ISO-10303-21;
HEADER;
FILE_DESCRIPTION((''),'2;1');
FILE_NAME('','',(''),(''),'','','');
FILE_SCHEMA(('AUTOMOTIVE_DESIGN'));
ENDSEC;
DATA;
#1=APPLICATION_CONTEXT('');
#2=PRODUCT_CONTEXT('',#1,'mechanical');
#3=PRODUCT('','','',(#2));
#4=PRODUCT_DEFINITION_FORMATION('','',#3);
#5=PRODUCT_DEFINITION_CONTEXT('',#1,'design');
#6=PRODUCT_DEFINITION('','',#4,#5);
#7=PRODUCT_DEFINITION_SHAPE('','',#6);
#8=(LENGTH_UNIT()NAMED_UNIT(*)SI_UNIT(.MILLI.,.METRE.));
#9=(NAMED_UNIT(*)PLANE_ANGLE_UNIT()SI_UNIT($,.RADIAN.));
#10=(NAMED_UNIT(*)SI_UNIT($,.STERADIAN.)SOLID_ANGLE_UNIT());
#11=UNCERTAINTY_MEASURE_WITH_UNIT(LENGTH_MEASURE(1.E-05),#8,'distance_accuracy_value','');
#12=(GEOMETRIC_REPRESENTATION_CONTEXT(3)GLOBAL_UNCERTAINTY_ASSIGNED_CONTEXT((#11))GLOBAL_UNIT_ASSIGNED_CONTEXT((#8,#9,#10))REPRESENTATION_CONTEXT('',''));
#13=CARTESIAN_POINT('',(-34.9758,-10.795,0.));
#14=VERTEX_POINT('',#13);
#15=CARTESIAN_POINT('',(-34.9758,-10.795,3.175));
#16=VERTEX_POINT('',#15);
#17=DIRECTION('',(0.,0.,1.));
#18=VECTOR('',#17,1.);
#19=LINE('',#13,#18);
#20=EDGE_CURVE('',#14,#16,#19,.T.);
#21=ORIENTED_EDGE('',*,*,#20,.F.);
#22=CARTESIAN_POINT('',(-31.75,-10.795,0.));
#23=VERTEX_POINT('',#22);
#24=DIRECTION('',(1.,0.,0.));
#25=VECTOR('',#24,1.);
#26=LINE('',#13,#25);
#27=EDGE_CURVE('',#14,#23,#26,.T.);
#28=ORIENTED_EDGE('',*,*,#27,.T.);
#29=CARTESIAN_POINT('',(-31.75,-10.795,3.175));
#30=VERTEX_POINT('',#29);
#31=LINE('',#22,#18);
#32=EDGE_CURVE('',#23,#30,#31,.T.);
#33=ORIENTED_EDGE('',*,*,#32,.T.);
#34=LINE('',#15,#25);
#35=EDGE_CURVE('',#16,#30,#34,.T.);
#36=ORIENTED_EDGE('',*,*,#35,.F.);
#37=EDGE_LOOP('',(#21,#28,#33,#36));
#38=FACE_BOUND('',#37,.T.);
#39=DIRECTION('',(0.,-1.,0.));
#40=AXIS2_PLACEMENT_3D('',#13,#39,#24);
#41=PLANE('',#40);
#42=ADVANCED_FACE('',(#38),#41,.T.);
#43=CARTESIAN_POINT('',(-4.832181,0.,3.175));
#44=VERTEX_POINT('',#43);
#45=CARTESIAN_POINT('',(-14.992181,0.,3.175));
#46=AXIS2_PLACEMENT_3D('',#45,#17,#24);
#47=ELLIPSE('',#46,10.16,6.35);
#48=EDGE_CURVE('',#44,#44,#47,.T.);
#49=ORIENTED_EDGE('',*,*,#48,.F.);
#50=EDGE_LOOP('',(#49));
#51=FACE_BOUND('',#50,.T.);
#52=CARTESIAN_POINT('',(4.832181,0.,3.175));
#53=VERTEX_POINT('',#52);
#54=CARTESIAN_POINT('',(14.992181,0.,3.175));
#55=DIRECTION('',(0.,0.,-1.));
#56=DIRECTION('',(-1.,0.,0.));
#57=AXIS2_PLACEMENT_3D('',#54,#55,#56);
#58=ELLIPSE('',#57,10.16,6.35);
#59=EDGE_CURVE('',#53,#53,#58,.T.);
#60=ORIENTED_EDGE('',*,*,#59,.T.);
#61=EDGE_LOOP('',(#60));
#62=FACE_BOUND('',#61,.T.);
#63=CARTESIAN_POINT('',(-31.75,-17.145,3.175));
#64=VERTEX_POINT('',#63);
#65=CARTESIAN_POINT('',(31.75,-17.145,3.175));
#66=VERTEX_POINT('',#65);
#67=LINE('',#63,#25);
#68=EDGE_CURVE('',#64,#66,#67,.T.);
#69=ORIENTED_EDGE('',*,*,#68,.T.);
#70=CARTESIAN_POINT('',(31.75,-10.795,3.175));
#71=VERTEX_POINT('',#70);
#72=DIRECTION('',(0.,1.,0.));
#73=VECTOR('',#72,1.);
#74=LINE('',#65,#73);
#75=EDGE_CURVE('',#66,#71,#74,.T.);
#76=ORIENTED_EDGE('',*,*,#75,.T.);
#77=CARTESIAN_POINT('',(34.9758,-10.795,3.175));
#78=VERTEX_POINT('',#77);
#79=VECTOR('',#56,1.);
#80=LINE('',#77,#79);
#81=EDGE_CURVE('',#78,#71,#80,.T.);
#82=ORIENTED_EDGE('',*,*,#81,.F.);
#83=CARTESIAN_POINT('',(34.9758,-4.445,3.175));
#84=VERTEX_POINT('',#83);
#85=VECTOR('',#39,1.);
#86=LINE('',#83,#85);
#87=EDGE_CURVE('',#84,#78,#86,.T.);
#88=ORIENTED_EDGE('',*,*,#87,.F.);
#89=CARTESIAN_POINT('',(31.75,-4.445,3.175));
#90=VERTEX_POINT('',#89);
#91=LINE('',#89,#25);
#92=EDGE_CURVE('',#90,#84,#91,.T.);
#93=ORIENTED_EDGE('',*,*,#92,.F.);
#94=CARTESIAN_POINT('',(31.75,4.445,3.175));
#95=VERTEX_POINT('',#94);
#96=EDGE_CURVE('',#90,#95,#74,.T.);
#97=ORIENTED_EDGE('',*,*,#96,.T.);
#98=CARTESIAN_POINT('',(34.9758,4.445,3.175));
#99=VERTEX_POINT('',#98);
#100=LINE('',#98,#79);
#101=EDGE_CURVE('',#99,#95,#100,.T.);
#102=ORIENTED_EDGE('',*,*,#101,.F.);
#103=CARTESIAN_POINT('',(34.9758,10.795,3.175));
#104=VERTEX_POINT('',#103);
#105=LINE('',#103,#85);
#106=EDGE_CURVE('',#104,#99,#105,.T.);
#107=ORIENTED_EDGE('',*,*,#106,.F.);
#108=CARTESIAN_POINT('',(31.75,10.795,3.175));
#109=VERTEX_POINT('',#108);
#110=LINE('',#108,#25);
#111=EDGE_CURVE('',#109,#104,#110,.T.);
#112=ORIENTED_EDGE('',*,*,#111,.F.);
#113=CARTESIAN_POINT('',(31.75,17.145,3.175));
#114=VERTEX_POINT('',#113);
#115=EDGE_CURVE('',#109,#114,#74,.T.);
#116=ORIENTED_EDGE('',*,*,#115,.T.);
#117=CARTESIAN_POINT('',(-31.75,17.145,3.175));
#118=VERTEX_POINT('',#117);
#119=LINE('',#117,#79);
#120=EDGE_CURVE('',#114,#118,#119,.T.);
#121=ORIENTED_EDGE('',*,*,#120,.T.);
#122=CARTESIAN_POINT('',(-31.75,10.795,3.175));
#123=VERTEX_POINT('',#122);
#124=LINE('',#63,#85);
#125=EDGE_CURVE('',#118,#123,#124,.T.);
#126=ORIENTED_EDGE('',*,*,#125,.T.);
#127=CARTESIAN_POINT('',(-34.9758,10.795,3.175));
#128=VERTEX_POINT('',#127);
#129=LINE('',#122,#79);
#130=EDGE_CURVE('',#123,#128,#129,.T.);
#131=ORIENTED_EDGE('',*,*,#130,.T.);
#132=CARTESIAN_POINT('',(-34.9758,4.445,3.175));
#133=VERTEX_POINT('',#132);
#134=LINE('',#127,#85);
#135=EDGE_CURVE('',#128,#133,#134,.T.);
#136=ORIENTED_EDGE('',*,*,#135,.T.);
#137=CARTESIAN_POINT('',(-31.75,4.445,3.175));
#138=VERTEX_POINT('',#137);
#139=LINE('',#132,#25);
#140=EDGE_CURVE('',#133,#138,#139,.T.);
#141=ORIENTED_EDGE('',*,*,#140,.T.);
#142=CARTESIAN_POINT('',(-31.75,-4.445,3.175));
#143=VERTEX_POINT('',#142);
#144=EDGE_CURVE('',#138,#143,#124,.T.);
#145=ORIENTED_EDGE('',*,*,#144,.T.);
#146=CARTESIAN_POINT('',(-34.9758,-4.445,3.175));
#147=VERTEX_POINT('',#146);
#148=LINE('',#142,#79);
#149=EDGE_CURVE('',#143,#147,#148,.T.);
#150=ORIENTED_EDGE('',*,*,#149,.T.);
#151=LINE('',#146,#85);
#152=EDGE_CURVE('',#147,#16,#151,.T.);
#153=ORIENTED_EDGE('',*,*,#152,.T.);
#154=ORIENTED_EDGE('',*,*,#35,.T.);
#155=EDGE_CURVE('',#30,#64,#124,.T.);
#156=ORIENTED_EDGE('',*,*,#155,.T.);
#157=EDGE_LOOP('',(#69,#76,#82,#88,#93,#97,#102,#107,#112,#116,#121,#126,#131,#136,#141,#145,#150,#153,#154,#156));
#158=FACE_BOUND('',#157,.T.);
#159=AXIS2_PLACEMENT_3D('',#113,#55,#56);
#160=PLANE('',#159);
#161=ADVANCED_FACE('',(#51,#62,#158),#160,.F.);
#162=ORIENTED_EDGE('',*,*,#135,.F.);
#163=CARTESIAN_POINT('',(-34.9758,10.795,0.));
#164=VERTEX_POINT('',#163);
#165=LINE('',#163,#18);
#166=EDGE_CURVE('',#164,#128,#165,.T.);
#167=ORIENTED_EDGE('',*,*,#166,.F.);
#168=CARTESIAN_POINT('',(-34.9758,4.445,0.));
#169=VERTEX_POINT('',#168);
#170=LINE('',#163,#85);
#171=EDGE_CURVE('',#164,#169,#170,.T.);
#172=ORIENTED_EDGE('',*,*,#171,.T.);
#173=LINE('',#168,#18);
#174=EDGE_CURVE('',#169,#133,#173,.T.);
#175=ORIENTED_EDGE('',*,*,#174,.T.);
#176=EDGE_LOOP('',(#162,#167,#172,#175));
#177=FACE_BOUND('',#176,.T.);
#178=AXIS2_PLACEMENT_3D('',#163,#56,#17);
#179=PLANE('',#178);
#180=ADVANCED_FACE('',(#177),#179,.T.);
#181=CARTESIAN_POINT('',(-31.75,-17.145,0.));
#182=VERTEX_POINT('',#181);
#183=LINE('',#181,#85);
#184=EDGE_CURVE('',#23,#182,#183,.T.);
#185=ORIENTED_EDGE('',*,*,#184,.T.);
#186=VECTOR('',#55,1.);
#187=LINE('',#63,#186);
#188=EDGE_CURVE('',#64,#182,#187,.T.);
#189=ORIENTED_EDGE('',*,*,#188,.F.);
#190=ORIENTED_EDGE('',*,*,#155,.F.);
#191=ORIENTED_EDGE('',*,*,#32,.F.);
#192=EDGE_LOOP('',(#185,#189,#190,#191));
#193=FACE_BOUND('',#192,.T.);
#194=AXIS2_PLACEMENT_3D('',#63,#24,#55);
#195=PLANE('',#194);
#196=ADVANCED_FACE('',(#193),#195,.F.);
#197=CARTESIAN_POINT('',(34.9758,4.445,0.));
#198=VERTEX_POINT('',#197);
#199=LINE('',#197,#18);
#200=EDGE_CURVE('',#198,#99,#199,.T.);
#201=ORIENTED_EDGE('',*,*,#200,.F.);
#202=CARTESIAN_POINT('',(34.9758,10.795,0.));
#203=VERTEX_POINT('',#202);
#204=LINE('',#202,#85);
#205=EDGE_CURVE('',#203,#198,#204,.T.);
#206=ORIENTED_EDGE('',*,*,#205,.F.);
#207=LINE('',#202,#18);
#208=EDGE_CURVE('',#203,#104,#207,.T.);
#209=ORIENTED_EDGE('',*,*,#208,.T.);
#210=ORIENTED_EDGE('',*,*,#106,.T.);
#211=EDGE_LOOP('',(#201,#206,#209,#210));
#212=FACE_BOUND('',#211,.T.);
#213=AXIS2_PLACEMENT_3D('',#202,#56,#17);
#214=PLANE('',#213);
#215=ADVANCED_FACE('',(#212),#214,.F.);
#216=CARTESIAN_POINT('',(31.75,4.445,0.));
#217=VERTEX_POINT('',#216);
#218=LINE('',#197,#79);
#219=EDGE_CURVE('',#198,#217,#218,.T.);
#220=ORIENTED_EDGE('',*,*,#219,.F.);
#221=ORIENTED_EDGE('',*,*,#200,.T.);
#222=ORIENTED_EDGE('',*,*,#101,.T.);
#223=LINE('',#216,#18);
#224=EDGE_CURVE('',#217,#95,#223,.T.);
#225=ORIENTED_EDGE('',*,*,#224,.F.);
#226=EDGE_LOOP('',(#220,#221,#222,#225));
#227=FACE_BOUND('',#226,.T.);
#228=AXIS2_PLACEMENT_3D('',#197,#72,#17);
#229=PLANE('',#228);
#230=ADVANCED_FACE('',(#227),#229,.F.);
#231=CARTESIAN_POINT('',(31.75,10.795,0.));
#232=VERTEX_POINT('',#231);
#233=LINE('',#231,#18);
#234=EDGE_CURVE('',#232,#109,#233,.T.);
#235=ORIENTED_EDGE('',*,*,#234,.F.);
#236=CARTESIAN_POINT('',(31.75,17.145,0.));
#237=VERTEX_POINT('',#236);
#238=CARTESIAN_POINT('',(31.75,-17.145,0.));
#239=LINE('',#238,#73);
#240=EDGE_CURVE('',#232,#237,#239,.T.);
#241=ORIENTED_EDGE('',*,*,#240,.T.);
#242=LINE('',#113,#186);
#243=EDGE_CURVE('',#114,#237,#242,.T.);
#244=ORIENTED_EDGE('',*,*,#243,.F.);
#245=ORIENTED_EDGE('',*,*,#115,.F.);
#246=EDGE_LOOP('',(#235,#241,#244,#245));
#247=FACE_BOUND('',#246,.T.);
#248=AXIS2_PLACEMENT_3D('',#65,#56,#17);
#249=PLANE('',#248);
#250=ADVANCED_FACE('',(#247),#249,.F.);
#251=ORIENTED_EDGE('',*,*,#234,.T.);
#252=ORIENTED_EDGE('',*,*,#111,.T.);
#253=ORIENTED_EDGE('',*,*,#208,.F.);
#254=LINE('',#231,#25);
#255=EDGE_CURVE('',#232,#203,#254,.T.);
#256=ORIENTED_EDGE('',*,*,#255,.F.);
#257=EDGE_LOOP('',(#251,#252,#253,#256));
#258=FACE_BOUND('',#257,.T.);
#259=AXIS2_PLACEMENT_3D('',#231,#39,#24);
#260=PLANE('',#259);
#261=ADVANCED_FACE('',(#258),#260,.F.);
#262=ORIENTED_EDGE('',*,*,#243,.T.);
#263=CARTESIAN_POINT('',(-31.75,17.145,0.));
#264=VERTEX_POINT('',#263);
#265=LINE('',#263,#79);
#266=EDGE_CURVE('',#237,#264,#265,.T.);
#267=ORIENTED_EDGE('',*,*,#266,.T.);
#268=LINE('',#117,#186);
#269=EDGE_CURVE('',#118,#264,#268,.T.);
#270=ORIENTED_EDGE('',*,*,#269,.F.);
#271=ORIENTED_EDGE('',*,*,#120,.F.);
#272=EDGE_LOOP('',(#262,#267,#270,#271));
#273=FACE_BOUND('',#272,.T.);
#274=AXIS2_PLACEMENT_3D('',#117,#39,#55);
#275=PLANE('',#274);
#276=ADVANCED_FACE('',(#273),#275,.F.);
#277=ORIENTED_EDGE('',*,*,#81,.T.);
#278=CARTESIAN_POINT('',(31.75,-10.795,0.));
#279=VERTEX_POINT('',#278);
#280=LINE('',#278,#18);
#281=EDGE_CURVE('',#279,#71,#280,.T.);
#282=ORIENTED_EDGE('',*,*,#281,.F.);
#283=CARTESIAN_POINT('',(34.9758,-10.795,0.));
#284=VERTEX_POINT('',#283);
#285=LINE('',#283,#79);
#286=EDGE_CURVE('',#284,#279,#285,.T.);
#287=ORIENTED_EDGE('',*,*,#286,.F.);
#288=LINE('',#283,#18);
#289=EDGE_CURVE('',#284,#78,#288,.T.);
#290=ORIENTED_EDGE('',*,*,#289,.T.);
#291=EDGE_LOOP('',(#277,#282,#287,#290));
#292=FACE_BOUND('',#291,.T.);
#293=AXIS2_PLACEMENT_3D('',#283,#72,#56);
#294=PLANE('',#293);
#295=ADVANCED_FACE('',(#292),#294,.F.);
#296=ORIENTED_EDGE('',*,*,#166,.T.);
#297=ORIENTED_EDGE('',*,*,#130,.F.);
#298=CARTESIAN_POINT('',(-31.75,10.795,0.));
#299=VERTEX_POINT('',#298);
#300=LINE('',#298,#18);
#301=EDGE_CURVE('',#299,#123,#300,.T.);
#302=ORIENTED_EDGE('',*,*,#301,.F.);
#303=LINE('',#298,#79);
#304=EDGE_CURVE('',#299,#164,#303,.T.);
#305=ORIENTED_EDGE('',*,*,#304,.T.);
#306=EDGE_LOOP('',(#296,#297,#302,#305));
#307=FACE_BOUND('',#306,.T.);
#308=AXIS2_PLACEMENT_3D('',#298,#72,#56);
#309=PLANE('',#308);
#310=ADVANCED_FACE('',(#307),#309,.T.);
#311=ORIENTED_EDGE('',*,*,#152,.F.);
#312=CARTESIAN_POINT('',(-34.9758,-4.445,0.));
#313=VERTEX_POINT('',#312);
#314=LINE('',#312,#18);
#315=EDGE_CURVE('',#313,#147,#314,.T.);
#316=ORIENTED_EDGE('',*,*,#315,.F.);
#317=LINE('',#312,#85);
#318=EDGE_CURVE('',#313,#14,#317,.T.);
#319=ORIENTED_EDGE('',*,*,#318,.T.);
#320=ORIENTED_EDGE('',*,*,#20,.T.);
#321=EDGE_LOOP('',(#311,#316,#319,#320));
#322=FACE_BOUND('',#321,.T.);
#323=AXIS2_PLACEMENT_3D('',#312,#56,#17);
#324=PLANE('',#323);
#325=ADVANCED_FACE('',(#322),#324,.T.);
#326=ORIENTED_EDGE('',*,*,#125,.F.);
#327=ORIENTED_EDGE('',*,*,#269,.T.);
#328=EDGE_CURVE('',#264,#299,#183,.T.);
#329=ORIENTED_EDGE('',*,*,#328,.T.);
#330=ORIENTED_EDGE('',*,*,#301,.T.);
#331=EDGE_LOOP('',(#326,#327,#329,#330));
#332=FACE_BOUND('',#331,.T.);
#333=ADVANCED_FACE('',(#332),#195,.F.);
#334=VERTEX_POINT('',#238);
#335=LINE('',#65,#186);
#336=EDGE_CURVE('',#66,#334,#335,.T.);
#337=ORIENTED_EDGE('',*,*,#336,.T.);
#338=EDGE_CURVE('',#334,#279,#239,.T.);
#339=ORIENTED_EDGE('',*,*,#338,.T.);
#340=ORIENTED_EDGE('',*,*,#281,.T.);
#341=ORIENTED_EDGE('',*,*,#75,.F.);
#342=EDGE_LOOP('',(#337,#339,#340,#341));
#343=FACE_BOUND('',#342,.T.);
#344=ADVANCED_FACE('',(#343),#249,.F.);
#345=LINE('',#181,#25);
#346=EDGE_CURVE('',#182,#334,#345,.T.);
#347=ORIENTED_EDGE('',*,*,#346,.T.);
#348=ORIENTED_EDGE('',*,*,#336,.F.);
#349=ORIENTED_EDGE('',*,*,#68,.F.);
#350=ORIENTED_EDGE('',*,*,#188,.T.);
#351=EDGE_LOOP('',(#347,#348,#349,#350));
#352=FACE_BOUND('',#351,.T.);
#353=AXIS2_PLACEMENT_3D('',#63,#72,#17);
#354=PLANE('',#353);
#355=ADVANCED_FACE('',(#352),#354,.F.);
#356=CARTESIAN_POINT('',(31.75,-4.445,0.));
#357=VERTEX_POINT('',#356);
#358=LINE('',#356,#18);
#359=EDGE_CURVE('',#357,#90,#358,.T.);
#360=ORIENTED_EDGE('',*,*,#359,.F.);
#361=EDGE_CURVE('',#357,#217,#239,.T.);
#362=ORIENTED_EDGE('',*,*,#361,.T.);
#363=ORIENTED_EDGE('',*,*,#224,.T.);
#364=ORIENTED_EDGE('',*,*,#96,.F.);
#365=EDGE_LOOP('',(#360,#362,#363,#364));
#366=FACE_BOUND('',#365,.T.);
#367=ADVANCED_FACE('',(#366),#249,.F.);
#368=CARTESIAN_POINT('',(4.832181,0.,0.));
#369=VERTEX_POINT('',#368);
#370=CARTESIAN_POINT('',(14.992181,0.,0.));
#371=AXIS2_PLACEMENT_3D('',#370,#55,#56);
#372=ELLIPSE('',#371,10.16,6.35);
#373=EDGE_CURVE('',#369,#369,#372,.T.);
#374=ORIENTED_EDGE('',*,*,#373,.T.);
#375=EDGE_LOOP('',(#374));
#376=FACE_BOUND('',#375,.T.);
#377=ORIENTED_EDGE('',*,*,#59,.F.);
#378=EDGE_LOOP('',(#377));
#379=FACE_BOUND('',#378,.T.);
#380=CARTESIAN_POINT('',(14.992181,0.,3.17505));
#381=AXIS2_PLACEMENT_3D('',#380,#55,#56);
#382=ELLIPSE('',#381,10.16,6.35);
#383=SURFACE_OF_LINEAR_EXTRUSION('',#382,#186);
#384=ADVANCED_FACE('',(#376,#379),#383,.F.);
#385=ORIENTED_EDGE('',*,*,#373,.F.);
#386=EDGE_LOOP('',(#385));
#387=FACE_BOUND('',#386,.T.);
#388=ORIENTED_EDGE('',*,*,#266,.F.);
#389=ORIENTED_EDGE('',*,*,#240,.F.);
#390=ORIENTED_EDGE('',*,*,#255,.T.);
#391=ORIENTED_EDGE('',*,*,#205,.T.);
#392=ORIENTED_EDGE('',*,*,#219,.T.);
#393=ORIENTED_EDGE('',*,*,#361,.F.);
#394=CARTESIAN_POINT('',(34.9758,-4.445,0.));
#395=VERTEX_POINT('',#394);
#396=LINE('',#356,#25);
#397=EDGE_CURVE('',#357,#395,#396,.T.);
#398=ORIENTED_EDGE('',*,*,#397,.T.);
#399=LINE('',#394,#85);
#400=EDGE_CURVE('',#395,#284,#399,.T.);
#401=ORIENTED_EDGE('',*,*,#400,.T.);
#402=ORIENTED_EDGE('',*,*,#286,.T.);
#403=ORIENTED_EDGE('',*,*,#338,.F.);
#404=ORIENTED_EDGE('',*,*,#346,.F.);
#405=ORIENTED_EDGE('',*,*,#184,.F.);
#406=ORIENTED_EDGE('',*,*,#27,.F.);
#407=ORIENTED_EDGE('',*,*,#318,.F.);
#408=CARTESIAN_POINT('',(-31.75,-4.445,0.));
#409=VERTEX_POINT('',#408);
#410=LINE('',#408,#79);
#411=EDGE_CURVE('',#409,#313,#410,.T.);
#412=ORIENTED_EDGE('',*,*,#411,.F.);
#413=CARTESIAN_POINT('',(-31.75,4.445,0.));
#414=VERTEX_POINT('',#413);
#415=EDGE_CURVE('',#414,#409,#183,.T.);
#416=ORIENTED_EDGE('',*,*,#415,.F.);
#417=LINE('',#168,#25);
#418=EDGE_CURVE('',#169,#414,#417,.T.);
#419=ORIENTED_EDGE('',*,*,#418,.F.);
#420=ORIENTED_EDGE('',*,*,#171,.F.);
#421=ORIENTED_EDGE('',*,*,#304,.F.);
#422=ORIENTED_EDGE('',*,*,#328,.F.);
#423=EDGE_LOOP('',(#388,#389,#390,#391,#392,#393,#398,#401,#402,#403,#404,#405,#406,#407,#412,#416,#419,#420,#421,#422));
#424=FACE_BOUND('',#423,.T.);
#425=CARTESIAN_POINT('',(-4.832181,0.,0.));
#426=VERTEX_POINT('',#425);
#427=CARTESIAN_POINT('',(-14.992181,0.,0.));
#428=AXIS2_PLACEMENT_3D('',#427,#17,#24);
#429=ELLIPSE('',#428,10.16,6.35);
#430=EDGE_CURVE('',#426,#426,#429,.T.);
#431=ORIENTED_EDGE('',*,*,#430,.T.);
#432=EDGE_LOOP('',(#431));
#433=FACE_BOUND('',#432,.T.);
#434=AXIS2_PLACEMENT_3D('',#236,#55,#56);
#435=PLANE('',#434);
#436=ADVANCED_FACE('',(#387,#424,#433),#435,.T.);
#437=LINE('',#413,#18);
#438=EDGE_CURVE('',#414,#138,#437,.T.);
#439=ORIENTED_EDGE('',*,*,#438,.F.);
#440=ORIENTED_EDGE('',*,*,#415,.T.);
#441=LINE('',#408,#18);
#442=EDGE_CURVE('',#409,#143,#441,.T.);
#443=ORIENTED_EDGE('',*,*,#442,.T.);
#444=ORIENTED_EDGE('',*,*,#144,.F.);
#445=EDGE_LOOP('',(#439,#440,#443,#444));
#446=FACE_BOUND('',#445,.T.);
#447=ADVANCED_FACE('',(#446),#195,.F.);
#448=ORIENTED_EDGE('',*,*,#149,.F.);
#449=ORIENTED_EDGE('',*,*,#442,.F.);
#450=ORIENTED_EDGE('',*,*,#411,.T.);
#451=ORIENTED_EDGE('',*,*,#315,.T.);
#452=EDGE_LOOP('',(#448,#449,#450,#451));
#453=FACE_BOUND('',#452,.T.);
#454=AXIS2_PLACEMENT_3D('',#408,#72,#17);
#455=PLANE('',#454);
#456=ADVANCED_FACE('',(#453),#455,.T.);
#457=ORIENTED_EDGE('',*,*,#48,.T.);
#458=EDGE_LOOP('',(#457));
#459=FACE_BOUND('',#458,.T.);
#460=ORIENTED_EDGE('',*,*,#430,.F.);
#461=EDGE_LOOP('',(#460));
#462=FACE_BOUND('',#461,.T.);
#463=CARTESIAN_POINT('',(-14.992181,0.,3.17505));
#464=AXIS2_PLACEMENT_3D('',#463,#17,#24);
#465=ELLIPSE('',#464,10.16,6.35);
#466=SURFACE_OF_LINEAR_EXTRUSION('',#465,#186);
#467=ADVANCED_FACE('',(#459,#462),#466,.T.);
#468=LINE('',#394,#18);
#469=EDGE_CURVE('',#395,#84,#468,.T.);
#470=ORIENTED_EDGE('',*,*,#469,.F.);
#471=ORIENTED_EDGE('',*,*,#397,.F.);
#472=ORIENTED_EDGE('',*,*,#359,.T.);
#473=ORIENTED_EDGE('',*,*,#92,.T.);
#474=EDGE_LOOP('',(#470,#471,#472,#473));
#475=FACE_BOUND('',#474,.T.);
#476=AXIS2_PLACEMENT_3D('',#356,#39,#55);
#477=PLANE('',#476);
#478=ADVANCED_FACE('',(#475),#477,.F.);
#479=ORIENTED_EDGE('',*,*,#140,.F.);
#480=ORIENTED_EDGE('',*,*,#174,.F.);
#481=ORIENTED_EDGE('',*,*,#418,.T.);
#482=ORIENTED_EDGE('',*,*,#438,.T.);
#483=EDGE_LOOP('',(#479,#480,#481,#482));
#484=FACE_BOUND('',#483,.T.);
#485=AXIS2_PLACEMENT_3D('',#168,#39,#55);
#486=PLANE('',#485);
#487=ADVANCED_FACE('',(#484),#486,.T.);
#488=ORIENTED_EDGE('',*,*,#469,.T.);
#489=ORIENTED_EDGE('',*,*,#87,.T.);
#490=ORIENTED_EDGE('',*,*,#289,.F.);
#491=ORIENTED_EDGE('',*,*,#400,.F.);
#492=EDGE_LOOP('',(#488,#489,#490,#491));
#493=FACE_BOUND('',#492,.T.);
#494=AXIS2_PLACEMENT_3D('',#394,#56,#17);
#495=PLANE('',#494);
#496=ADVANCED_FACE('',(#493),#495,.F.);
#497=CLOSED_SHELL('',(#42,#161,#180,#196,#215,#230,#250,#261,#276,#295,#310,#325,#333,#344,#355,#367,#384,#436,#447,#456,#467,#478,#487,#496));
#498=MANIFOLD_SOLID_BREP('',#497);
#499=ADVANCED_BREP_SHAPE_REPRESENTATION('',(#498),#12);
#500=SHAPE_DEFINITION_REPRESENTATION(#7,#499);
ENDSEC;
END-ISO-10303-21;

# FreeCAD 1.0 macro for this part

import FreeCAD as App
import Part
import Sketcher

V = App.Vector
Q = App.Units.Quantity


def add_polygon(sketch, points):
    """Adds a closed chain of lines whose ends are joined by coincident constraints."""
    first, n = sketch.GeometryCount, len(points)
    for a, b in zip(points, points[1:] + points[:1]):
        sketch.addGeometry(Part.LineSegment(App.Vector(*a, 0), App.Vector(*b, 0)), False)
    for i in range(n):
        sketch.addConstraint(Sketcher.Constraint("Coincident", first + i, 2, first + (i + 1) % n, 1))

doc = App.newDocument("Part")
params = doc.addObject("Spreadsheet::Sheet", "Params")
for row, (alias, value) in enumerate([
    ("sketch1_width", "2.5 in"),
    ("sketch1_height", "1.35 in"),
    ("pad1_length", "0.125 in"),
    ("sketch2_height", "0.25 in"),
    ("sketch2_width", "0.127 in"),
    ("pad2_length", "0.125 in"),
], start=1):
    params.set(f"A{row}", alias)
    params.set(f"B{row}", "=" + value)
    params.setAlias(f"B{row}", alias)

body = doc.addObject("PartDesign::Body", "Body")

sketch1 = body.newObject("Sketcher::SketchObject", "Sketch")
sketch1.AttachmentSupport = (doc.getObject("XY_Plane"), [""])
sketch1.MapMode = "FlatFace"
add_polygon(sketch1, [(-31.75, 17.145), (-31.75, -17.145), (31.75, -17.145), (31.75, 17.145)])
sketch1.addConstraint([
    Sketcher.Constraint("Vertical", 0),
    Sketcher.Constraint("Horizontal", 1),
    Sketcher.Constraint("Vertical", 2),
    Sketcher.Constraint("Horizontal", 3),
    Sketcher.Constraint("Symmetric", 0, 2, 2, 2, -1, 1),
    Sketcher.Constraint("DistanceX", 1, 1, 1, 2, Q("2.5 in")),
    Sketcher.Constraint("DistanceY", 0, 2, 0, 1, Q("1.35 in")),
])
sketch1.setExpression("Constraints[9]", "Params.sketch1_width")
sketch1.setExpression("Constraints[10]", "Params.sketch1_height")
pad1 = body.newObject("PartDesign::Pad", "Pad")
pad1.Profile = sketch1
pad1.setExpression("Length", "Params.pad1_length")

sketch2 = body.newObject("Sketcher::SketchObject", "Sketch001")
sketch2.AttachmentSupport = (doc.getObject("XY_Plane"), [""])
sketch2.MapMode = "FlatFace"
sketch2.AttachmentOffset = App.Placement(V(0, 0, 0.125 * 25.4), App.Rotation())
add_polygon(sketch2, [(-34.9758, 10.795), (-34.9758, 4.445), (-31.75, 4.445), (-31.75, 10.795)])
add_polygon(sketch2, [(-34.9758, -4.445), (-34.9758, -10.795), (-31.75, -10.795), (-31.75, -4.445)])
sketch2.addConstraint([
    Sketcher.Constraint("Vertical", 0),
    Sketcher.Constraint("Horizontal", 1),
    Sketcher.Constraint("Vertical", 2),
    Sketcher.Constraint("Horizontal", 3),
    Sketcher.Constraint("Vertical", 4),
    Sketcher.Constraint("Horizontal", 5),
    Sketcher.Constraint("Vertical", 6),
    Sketcher.Constraint("Horizontal", 7),
    Sketcher.Constraint("Symmetric", 3, 2, 4, 2, -1),
    Sketcher.Constraint("Symmetric", 1, 2, 6, 2, -1),
    Sketcher.Constraint("DistanceY", 0, 2, 0, 1, Q("0.25 in")),
    Sketcher.Constraint("DistanceY", 4, 2, 0, 2, Q("0.6 in")),
    Sketcher.Constraint("DistanceX", 1, 1, 1, 2, Q("0.127 in")),
    Sketcher.Constraint("DistanceX", 1, 2, -1, 1, Q("1.25 in")),
])
sketch2.setExpression("Constraints[18]", "Params.sketch2_height")
sketch2.setExpression("Constraints[20]", "Params.sketch2_width")
pad2 = body.newObject("PartDesign::Pad", "Pad001")
pad2.Profile = sketch2
pad2.setExpression("Length", "Params.pad2_length")
pad2.Reversed = True
doc.recompute()

mirrored = body.newObject("PartDesign::Mirrored", "Mirrored")
mirrored.Originals = [pad2]
mirrored.MirrorPlane = (doc.getObject("YZ_Plane"), [""])
body.Tip = mirrored

sketch3 = body.newObject("Sketcher::SketchObject", "Sketch002")
sketch3.AttachmentSupport = (doc.getObject("XY_Plane"), [""])
sketch3.MapMode = "FlatFace"
sketch3.addGeometry(Part.Ellipse(V(25.152181, 0, 0), V(14.992181, 6.35, 0), V(14.992181, 0, 0)), False)
sketch3.addConstraint(Sketcher.Constraint("Block", 0))
pocket1 = body.newObject("PartDesign::Pocket", "Pocket")
pocket1.Profile = sketch3
pocket1.Type = "ThroughAll"
pocket1.Reversed = True
doc.recompute()

mirrored2 = body.newObject("PartDesign::Mirrored", "Mirrored001")
mirrored2.Originals = [pocket1]
mirrored2.MirrorPlane = (doc.getObject("YZ_Plane"), [""])
body.Tip = mirrored2

doc.recompute()
